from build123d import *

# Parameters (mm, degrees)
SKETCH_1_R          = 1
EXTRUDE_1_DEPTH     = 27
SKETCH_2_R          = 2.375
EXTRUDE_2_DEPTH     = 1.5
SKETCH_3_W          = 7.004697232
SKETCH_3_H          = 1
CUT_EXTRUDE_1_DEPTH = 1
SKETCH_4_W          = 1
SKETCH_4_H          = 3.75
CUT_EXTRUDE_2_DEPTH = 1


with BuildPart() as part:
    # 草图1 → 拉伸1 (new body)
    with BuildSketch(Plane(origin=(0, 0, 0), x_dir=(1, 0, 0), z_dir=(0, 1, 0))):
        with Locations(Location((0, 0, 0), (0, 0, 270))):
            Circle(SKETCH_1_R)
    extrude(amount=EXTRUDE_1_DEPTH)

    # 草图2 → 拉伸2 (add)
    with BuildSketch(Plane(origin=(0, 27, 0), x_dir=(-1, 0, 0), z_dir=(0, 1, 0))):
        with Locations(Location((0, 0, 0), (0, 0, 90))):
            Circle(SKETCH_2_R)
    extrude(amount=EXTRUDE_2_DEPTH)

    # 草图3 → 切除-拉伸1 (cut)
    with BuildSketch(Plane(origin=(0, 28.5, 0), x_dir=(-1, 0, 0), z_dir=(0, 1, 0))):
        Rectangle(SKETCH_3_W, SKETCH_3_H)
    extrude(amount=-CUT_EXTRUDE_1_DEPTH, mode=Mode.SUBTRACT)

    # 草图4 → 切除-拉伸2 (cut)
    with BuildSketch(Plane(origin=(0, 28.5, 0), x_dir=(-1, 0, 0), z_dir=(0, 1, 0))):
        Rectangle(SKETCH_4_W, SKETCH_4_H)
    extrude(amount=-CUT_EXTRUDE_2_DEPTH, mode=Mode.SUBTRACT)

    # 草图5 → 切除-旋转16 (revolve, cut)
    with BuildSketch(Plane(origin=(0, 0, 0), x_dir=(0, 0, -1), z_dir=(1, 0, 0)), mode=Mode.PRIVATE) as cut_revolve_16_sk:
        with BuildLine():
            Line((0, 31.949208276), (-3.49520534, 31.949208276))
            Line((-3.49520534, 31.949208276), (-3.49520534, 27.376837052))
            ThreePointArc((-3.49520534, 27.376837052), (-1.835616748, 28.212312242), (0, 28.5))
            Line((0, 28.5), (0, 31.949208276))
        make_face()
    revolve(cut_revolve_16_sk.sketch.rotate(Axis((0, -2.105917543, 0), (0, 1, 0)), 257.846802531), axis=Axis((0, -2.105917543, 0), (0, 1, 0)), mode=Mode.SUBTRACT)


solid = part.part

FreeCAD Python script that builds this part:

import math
import FreeCAD as App
import Part
import Sketcher
from FreeCAD import Vector

doc = App.newDocument("Part")
body = doc.addObject("PartDesign::Body", "Body")

# Sketch on XZ plane
sketch1 = body.newObject("Sketcher::SketchObject", "Sketch")
sketch1.AttachmentSupport = (doc.getObject("XZ_Plane"), [""])
sketch1.MapMode = "FlatFace"
sketch1.addGeometry(Part.Circle(Vector(0, 0, 0), Vector(0, 0, 1), 1), False)
sketch1.addConstraint([
    Sketcher.Constraint("Coincident", 0, 3, -1, 1),
    Sketcher.Constraint("Diameter", 0, 2.0),
])
pad1 = body.newObject("PartDesign::Pad", "Pad")
pad1.Profile = sketch1
pad1.Length = 27
pad1.Reversed = True

# Sketch on XZ plane
sketch2 = body.newObject("Sketcher::SketchObject", "Sketch001")
sketch2.AttachmentSupport = (doc.getObject("XZ_Plane"), [""])
sketch2.MapMode = "FlatFace"
sketch2.AttachmentOffset = App.Placement(Vector(0, 0, -27), App.Rotation())
sketch2.addGeometry(Part.Circle(Vector(0, 0, 0), Vector(0, 0, 1), 2.375), False)
sketch2.addConstraint([
    Sketcher.Constraint("Coincident", 0, 3, -1, 1),
    Sketcher.Constraint("Diameter", 0, 4.75),
])
pad2 = body.newObject("PartDesign::Pad", "Pad001")
pad2.Profile = sketch2
pad2.Length = 1.5
pad2.Reversed = True

# Sketch on XZ plane
sketch3 = body.newObject("Sketcher::SketchObject", "Sketch002")
sketch3.AttachmentSupport = (doc.getObject("XZ_Plane"), [""])
sketch3.MapMode = "FlatFace"
sketch3.AttachmentOffset = App.Placement(Vector(0, 0, -28.5), App.Rotation())
sketch3.addGeometry([
    Part.LineSegment(Vector(3.502349, 0.5, 0), Vector(3.502349, -0.5, 0)),
    Part.LineSegment(Vector(3.502349, -0.5, 0), Vector(-3.502349, -0.5, 0)),
    Part.LineSegment(Vector(-3.502349, -0.5, 0), Vector(-3.502349, 0.5, 0)),
    Part.LineSegment(Vector(-3.502349, 0.5, 0), Vector(3.502349, 0.5, 0)),
], False)
sketch3.addConstraint([
    Sketcher.Constraint("Coincident", 0, 2, 1, 1),
    Sketcher.Constraint("Coincident", 1, 2, 2, 1),
    Sketcher.Constraint("Coincident", 2, 2, 3, 1),
    Sketcher.Constraint("Coincident", 3, 2, 0, 1),
    Sketcher.Constraint("Vertical", 0),
    Sketcher.Constraint("Horizontal", 1),
    Sketcher.Constraint("Vertical", 2),
    Sketcher.Constraint("Horizontal", 3),
    Sketcher.Constraint("Symmetric", 0, 2, 2, 2, -1, 1),
    Sketcher.Constraint("DistanceY", 0, 2, 0, 1, 1.0),
    Sketcher.Constraint("DistanceX", 1, 2, 1, 1, 7.004697),
])
pocket1 = body.newObject("PartDesign::Pocket", "Pocket")
pocket1.Profile = sketch3
pocket1.Length = 1
pocket1.Reversed = True

# Sketch on XZ plane
sketch4 = body.newObject("Sketcher::SketchObject", "Sketch003")
sketch4.AttachmentSupport = (doc.getObject("XZ_Plane"), [""])
sketch4.MapMode = "FlatFace"
sketch4.AttachmentOffset = App.Placement(Vector(0, 0, -28.5), App.Rotation())
sketch4.addGeometry([
    Part.LineSegment(Vector(0.5, 1.875, 0), Vector(0.5, -1.875, 0)),
    Part.LineSegment(Vector(0.5, -1.875, 0), Vector(-0.5, -1.875, 0)),
    Part.LineSegment(Vector(-0.5, -1.875, 0), Vector(-0.5, 1.875, 0)),
    Part.LineSegment(Vector(-0.5, 1.875, 0), Vector(0.5, 1.875, 0)),
], False)
sketch4.addConstraint([
    Sketcher.Constraint("Coincident", 0, 2, 1, 1),
    Sketcher.Constraint("Coincident", 1, 2, 2, 1),
    Sketcher.Constraint("Coincident", 2, 2, 3, 1),
    Sketcher.Constraint("Coincident", 3, 2, 0, 1),
    Sketcher.Constraint("Vertical", 0),
    Sketcher.Constraint("Horizontal", 1),
    Sketcher.Constraint("Vertical", 2),
    Sketcher.Constraint("Horizontal", 3),
    Sketcher.Constraint("Symmetric", 0, 2, 2, 2, -1, 1),
    Sketcher.Constraint("DistanceX", 1, 2, 1, 1, 1.0),
    Sketcher.Constraint("DistanceY", 0, 2, 0, 1, 3.75),
])
pocket2 = body.newObject("PartDesign::Pocket", "Pocket001")
pocket2.Profile = sketch4
pocket2.Length = 1
pocket2.Reversed = True

# Sketch on YZ plane
sketch5 = body.newObject("Sketcher::SketchObject", "Sketch004")
sketch5.AttachmentSupport = (doc.getObject("YZ_Plane"), [""])
sketch5.MapMode = "FlatFace"
sketch5.addGeometry([
    Part.LineSegment(Vector(31.949208, 0, 0), Vector(31.949208, 3.495205, 0)),
    Part.LineSegment(Vector(31.949208, 3.495205, 0), Vector(27.376837, 3.495205, 0)),
    Part.ArcOfCircle(Part.Circle(Vector(22.5, 0, 0), Vector(0, 0, 1), 6), math.radians(0), math.radians(35.628984)),
    Part.LineSegment(Vector(28.5, 0, 0), Vector(31.949208, 0, 0)),
], False)
sketch5.addConstraint([
    Sketcher.Constraint("Coincident", 0, 2, 1, 1),
    Sketcher.Constraint("Coincident", 1, 2, 2, 2),
    Sketcher.Constraint("Coincident", 2, 1, 3, 1),
    Sketcher.Constraint("Coincident", 3, 2, 0, 1),
    Sketcher.Constraint("Vertical", 0),
    Sketcher.Constraint("Horizontal", 1),
    Sketcher.Constraint("Horizontal", 3),
    Sketcher.Constraint("PointOnObject", 2, 3, -1),
    Sketcher.Constraint("PointOnObject", 2, 1, -1),
    Sketcher.Constraint("Radius", 2, 6.0),
    Sketcher.Constraint("DistanceX", -1, 1, 2, 3, 22.5),
    Sketcher.Constraint("DistanceX", 1, 2, 1, 1, 4.572371),
    Sketcher.Constraint("DistanceX", 3, 1, 3, 2, 3.449208),
])
groove = body.newObject("PartDesign::Groove", "Groove")
groove.Profile = sketch5
groove.ReferenceAxis = (sketch5, ["H_Axis"])
groove.Angle = 360

doc.recompute()
